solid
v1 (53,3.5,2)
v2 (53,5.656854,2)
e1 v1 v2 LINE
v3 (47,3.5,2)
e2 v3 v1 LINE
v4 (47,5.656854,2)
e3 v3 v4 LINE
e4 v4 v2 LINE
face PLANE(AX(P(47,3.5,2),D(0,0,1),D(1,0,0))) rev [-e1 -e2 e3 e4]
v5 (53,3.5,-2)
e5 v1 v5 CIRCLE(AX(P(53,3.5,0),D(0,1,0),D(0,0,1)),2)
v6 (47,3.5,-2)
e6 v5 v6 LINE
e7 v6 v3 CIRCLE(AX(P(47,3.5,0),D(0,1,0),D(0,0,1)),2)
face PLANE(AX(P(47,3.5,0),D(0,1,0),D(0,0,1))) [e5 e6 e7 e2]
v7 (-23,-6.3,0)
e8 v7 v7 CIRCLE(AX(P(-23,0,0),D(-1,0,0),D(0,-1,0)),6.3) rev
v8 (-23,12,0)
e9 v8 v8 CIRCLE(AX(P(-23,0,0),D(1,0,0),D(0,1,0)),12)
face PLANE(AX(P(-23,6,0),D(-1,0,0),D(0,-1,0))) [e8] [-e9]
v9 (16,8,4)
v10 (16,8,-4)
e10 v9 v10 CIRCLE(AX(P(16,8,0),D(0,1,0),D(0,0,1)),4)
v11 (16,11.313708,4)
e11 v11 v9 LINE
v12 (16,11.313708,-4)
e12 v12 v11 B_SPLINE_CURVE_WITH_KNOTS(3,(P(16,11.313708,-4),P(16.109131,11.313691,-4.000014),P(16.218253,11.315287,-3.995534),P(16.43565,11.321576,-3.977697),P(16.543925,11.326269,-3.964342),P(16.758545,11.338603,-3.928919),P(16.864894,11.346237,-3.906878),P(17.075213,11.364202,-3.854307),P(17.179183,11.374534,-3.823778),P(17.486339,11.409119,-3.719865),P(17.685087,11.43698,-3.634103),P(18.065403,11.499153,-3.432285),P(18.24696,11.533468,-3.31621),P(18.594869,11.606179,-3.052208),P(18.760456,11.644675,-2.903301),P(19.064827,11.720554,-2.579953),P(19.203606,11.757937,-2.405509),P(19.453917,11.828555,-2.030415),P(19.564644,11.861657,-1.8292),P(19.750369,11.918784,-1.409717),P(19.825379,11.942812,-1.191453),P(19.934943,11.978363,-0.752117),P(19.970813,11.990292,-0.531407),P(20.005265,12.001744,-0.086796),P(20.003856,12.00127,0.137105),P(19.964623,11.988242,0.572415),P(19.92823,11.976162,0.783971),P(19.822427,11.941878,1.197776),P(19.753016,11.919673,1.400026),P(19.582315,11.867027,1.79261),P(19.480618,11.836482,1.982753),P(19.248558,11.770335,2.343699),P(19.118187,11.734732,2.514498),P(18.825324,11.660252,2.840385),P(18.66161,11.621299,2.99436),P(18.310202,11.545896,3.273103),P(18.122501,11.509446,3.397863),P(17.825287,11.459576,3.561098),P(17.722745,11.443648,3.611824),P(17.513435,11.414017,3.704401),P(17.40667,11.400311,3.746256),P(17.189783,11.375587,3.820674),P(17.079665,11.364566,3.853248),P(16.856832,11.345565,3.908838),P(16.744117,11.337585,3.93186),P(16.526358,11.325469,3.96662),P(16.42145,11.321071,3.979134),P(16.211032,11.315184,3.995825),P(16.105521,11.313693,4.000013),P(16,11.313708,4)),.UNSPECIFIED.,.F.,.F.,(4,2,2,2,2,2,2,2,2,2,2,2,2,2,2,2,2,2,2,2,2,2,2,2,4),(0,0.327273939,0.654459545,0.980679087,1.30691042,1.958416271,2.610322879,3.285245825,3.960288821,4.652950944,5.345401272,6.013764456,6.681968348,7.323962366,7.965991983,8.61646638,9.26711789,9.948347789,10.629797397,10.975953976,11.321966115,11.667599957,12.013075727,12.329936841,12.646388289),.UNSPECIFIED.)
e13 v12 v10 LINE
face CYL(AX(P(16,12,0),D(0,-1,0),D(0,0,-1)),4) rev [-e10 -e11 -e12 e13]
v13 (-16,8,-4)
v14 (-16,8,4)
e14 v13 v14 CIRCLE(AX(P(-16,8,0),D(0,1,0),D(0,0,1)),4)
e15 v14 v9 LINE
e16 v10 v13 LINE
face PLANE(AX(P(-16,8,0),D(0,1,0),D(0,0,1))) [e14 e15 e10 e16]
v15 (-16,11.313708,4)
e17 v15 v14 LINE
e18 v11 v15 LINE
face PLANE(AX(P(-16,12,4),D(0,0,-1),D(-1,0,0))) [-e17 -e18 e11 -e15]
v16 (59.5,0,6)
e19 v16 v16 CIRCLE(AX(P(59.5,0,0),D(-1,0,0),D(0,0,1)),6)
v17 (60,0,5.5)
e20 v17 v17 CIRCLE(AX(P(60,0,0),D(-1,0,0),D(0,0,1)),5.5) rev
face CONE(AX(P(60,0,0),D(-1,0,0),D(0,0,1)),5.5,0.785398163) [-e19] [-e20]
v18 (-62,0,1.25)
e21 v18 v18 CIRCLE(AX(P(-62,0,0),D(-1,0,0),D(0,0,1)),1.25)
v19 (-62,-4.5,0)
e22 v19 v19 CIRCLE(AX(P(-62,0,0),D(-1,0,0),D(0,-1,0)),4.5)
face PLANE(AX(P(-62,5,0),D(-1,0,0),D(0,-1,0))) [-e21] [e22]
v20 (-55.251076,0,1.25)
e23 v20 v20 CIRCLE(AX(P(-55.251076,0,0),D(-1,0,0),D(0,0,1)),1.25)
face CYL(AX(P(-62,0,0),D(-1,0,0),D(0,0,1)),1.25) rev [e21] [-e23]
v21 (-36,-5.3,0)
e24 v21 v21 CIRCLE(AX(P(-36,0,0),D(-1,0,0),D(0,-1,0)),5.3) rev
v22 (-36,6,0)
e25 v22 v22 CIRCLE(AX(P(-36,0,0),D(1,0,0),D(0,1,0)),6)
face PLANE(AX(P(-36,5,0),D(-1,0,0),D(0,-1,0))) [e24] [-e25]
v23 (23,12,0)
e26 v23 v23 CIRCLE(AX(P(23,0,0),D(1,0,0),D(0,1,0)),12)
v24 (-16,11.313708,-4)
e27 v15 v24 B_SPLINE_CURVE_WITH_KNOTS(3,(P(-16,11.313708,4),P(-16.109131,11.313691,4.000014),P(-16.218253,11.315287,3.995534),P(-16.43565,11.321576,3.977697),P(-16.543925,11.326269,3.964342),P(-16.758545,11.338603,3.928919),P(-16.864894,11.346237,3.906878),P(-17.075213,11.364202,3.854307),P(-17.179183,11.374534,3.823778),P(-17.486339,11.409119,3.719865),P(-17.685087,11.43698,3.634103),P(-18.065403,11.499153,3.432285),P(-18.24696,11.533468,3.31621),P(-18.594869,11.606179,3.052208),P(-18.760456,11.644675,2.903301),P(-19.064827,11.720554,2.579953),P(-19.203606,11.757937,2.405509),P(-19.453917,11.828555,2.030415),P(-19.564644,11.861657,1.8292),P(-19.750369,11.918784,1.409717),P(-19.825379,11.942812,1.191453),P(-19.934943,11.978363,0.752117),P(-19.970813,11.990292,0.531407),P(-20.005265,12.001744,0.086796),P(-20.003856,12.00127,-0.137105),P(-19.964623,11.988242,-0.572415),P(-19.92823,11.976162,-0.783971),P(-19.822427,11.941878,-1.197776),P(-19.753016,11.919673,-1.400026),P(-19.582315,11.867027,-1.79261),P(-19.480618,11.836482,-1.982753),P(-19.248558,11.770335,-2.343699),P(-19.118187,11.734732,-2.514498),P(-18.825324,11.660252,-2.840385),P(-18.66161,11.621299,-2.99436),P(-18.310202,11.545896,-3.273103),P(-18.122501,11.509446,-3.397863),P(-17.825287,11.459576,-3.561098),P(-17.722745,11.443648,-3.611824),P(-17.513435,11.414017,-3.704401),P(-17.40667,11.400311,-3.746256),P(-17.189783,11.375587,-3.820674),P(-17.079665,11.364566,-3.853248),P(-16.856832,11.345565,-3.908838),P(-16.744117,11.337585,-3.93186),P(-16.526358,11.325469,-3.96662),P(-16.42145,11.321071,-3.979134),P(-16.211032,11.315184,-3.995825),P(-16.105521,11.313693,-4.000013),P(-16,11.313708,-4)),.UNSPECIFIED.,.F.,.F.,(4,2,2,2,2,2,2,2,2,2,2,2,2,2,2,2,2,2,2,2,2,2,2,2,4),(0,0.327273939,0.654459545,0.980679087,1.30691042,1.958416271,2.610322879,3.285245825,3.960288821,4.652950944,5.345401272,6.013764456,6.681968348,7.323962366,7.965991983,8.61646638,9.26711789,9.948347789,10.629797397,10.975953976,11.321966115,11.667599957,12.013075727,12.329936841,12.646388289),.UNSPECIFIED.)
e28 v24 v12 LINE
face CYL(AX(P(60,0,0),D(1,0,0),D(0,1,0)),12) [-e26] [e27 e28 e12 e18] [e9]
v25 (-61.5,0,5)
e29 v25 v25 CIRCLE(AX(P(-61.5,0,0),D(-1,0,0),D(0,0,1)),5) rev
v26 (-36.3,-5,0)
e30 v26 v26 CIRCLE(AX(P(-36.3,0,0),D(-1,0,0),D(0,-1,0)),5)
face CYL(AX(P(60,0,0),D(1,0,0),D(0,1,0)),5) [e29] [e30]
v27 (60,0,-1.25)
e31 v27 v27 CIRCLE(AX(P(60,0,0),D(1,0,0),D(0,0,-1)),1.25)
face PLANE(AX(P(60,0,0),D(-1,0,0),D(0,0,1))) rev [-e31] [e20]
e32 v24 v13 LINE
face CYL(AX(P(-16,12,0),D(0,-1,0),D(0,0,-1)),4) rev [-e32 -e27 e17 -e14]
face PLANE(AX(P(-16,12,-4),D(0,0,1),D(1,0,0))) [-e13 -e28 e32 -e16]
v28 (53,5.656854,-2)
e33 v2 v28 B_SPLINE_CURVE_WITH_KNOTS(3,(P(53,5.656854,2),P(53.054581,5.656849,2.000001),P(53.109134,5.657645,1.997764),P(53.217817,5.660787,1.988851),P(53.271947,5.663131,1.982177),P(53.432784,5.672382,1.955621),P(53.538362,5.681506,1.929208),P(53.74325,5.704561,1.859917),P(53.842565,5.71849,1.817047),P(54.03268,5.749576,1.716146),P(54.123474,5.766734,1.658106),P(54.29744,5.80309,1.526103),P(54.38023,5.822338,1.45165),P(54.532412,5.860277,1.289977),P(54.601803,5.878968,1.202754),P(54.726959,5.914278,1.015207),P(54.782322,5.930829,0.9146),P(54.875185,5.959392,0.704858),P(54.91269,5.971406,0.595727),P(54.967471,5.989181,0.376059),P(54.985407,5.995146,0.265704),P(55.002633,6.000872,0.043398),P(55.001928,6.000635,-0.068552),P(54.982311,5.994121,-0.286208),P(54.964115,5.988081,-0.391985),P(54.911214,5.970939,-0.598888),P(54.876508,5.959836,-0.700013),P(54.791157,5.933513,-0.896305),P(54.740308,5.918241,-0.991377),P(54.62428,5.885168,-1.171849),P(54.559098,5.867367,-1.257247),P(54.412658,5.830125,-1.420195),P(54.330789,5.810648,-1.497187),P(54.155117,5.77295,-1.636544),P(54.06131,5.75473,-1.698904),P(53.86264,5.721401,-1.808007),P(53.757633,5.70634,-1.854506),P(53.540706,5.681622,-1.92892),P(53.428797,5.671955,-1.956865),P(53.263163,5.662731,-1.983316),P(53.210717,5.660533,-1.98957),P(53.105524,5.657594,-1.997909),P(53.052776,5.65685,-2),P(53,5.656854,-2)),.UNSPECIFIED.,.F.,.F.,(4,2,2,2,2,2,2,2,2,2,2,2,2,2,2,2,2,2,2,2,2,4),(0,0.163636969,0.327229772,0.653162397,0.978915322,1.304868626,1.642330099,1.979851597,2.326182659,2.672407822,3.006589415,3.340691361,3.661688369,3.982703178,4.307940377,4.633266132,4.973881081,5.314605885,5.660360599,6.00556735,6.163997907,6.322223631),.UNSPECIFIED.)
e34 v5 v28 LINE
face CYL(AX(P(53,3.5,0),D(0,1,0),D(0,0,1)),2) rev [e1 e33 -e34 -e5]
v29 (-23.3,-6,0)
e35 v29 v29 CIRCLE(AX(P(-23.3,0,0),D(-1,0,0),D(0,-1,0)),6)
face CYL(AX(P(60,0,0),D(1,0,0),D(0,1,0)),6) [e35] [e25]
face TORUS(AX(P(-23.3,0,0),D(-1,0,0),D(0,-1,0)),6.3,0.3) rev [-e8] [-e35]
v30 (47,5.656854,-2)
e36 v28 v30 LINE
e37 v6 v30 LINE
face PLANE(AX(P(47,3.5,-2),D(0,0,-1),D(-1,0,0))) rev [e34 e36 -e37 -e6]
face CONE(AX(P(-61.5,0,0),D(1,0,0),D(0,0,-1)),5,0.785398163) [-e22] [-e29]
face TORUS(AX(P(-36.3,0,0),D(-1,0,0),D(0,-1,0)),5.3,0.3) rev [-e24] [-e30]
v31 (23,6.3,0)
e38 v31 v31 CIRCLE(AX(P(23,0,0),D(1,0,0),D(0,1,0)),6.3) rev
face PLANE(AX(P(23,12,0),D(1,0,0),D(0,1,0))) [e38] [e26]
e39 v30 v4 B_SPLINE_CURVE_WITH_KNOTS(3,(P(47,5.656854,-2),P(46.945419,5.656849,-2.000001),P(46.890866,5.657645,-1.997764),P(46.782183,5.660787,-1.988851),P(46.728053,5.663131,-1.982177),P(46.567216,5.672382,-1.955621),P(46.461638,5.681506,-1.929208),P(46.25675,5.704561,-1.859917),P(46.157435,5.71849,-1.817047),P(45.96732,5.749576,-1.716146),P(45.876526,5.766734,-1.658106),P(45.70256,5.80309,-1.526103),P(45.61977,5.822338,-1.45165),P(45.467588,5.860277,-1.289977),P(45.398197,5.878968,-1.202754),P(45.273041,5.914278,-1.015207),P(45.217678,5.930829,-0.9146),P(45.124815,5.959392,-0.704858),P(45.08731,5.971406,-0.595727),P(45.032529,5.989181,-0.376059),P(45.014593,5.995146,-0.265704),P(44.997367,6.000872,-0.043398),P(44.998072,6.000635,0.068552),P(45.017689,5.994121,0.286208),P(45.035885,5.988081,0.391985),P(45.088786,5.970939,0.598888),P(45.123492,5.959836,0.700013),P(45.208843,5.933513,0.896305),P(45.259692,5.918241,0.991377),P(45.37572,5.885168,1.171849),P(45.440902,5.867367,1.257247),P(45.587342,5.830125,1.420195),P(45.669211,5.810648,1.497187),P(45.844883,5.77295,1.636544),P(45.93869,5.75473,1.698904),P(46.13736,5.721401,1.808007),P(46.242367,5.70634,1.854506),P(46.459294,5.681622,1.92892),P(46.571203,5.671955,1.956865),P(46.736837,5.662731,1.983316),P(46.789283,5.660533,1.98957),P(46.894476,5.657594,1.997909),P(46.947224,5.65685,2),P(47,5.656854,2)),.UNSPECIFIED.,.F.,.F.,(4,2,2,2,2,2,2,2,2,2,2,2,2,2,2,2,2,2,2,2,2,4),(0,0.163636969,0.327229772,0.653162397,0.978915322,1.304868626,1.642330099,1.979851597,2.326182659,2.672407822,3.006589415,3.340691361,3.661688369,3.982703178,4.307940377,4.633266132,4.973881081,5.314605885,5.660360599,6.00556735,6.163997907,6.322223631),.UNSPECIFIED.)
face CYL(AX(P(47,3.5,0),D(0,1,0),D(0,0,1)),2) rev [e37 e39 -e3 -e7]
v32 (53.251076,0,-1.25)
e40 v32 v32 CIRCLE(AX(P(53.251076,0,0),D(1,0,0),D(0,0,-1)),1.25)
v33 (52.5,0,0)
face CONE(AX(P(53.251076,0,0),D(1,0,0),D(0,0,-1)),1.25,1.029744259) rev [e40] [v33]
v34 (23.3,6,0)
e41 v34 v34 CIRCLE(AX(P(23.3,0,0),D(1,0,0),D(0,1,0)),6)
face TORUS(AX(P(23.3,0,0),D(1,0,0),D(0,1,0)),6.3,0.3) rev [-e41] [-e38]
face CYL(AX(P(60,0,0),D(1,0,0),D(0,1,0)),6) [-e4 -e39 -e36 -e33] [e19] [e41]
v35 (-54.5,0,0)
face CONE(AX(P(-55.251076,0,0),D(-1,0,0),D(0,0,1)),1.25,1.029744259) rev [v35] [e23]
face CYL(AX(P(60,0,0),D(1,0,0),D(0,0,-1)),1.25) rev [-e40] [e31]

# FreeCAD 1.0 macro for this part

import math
import FreeCAD as App
import Part
import Sketcher

V = App.Vector
Q = App.Units.Quantity


def edges_at(feature, points):
    """Names of the edges that pass closest to the given points."""
    edges = feature.Shape.Edges
    near = lambda p: min(range(len(edges)), key=lambda i: edges[i].distToShape(Part.Vertex(*p))[0])
    return sorted({f"Edge{near(p) + 1}" for p in points})


def add_polygon(sketch, points):
    """Adds a closed chain of lines whose ends are joined by coincident constraints."""
    first, n = sketch.GeometryCount, len(points)
    for a, b in zip(points, points[1:] + points[:1]):
        sketch.addGeometry(Part.LineSegment(App.Vector(*a, 0), App.Vector(*b, 0)), False)
    for i in range(n):
        sketch.addConstraint(Sketcher.Constraint("Coincident", first + i, 2, first + (i + 1) % n, 1))

doc = App.newDocument("Part")
params = doc.addObject("Spreadsheet::Sheet", "Params")
for row, (alias, value) in enumerate([
    ("sketch1_width", "47 mm"),
    ("sketch1_width2", "46 mm"),
    ("sketch1_width3", "13 mm"),
    ("sketch1_width4", "26 mm"),
    ("sketch1_height", "6 mm"),
    ("revolution_angle", "360 deg"),
    ("sketch2_radius", "4 mm"),
    ("sketch2_width", "32 mm"),
    ("pocket1_length", "4 mm"),
    ("sketch3_width", "5 mm"),
    ("sketch3_height", "8 mm"),
    ("pocket2_length", "10 mm"),
    ("sketch4_diameter", "2.5 mm"),
    ("pocket3_length", "4 mm"),
    ("sketch5_diameter", "12 mm"),
    ("pocket4_length", "10 mm"),
    ("sketch6_radius", "2 mm"),
    ("sketch6_width", "6 mm"),
    ("pocket5_length", "2.5 mm"),
    ("sketch7_diameter", "2.5 mm"),
    ("hole_diameter", "2.5 mm"),
    ("hole_depth", "6.748924 mm"),
    ("sketch8_diameter", "2.5 mm"),
    ("hole2_diameter", "2.5 mm"),
    ("hole2_depth", "6.748924 mm"),
    ("chamfer_size", "0.5 mm"),
    ("fillet_radius", "0.3 mm"),
], start=1):
    params.set(f"A{row}", alias)
    params.set(f"B{row}", "=" + value)
    params.setAlias(f"B{row}", alias)

body = doc.addObject("PartDesign::Body", "Body")

sketch1 = doc.addObject("Sketcher::SketchObject", "Sketch")
body.addObject(sketch1)
sketch1.AttachmentSupport = (doc.XY_Plane, [""])
sketch1.MapMode = "FlatFace"
add_polygon(sketch1, [(70, 6), (23, 6), (23, 12), (-23, 12), (-23, 6), (-36, 6), (-36, 5), (-62, 5), (-62, 0), (70, 0)])
sketch1.addConstraint(Sketcher.Constraint("Horizontal", 0))
sketch1.addConstraint(Sketcher.Constraint("Vertical", 1))
sketch1.addConstraint(Sketcher.Constraint("Horizontal", 2))
sketch1.addConstraint(Sketcher.Constraint("Vertical", 3))
sketch1.addConstraint(Sketcher.Constraint("Horizontal", 4))
sketch1.addConstraint(Sketcher.Constraint("Vertical", 5))
sketch1.addConstraint(Sketcher.Constraint("Horizontal", 6))
sketch1.addConstraint(Sketcher.Constraint("Vertical", 7))
sketch1.addConstraint(Sketcher.Constraint("Horizontal", 8))
sketch1.addConstraint(Sketcher.Constraint("Vertical", 9))
sketch1.addConstraint(Sketcher.Constraint("Symmetric", 0, 2, 3, 2, -2))
sketch1.addConstraint(Sketcher.Constraint("PointOnObject", 7, 2, -1))
sketch1.addConstraint(Sketcher.Constraint("Equal", 3, 9))
sketch1.addConstraint(Sketcher.Constraint("DistanceX", 0, 2, 0, 1, Q("47 mm")))
sketch1.addConstraint(Sketcher.Constraint("DistanceX", 2, 2, 2, 1, Q("46 mm")))
sketch1.addConstraint(Sketcher.Constraint("DistanceX", 4, 2, 4, 1, Q("13 mm")))
sketch1.addConstraint(Sketcher.Constraint("DistanceX", 6, 2, 6, 1, Q("26 mm")))
sketch1.addConstraint(Sketcher.Constraint("DistanceY", 1, 1, 1, 2, Q("6 mm")))
sketch1.addConstraint(Sketcher.Constraint("DistanceY", 5, 2, 5, 1, Q("1 mm")))
sketch1.setExpression("Constraints[23]", "Params.sketch1_width")
sketch1.setExpression("Constraints[24]", "Params.sketch1_width2")
sketch1.setExpression("Constraints[25]", "Params.sketch1_width3")
sketch1.setExpression("Constraints[26]", "Params.sketch1_width4")
sketch1.setExpression("Constraints[27]", "Params.sketch1_height")
revolution = doc.addObject("PartDesign::Revolution", "Revolution")
body.addObject(revolution)
revolution.Profile = sketch1
revolution.ReferenceAxis = (sketch1, ["H_Axis"])
revolution.setExpression("Angle", "Params.revolution_angle")

sketch2 = doc.addObject("Sketcher::SketchObject", "Sketch001")
body.addObject(sketch2)
sketch2.AttachmentSupport = (doc.XZ_Plane, [""])
sketch2.MapMode = "FlatFace"
sketch2.AttachmentOffset = App.Placement(V(0, 0, -8), App.Rotation())
sketch2.addGeometry(Part.LineSegment(V(16, -4, 0), V(-16, -4, 0)), False)
sketch2.addGeometry(Part.ArcOfCircle(Part.Circle(V(-16, 0, 0), V(0, 0, 1), 4), math.radians(90), math.radians(270)), False)
sketch2.addGeometry(Part.LineSegment(V(-16, 4, 0), V(16, 4, 0)), False)
sketch2.addGeometry(Part.ArcOfCircle(Part.Circle(V(16, 0, 0), V(0, 0, 1), 4), math.radians(-90), math.radians(90)), False)
sketch2.addConstraint(Sketcher.Constraint("Tangent", 0, 2, 1, 2))
sketch2.addConstraint(Sketcher.Constraint("Tangent", 1, 1, 2, 1))
sketch2.addConstraint(Sketcher.Constraint("Tangent", 2, 2, 3, 2))
sketch2.addConstraint(Sketcher.Constraint("Tangent", 3, 1, 0, 1))
sketch2.addConstraint(Sketcher.Constraint("Horizontal", 0))
sketch2.addConstraint(Sketcher.Constraint("Horizontal", 2))
sketch2.addConstraint(Sketcher.Constraint("Symmetric", 1, 3, 3, 3, -1, 1))
sketch2.addConstraint(Sketcher.Constraint("Radius", 1, Q("4 mm")))
sketch2.addConstraint(Sketcher.Constraint("DistanceX", 0, 2, 0, 1, Q("32 mm")))
sketch2.setExpression("Constraints[7]", "Params.sketch2_radius")
sketch2.setExpression("Constraints[8]", "Params.sketch2_width")
pocket1 = doc.addObject("PartDesign::Pocket", "Pocket")
body.addObject(pocket1)
pocket1.Profile = sketch2
pocket1.setExpression("Length", "Params.pocket1_length")

sketch3 = doc.addObject("Sketcher::SketchObject", "Sketch002")
body.addObject(sketch3)
sketch3.AttachmentSupport = (doc.YZ_Plane, [""])
sketch3.MapMode = "FlatFace"
sketch3.AttachmentOffset = App.Placement(V(0, 0, 70), App.Rotation())
add_polygon(sketch3, [(10, 4), (4, 4), (4, -4), (10, -4)])
sketch3.addConstraint(Sketcher.Constraint("Horizontal", 0))
sketch3.addConstraint(Sketcher.Constraint("Vertical", 1))
sketch3.addConstraint(Sketcher.Constraint("Horizontal", 2))
sketch3.addConstraint(Sketcher.Constraint("Vertical", 3))
sketch3.addConstraint(Sketcher.Constraint("DistanceX", 0, 2, 0, 1, Q("5 mm")))
sketch3.addConstraint(Sketcher.Constraint("DistanceY", 1, 2, 1, 1, Q("8 mm")))
sketch3.addConstraint(Sketcher.Constraint("DistanceY", -1, 1, 0, 2, Q("4 mm")))
sketch3.addConstraint(Sketcher.Constraint("DistanceX", -1, 1, 0, 2, Q("4.5 mm")))
sketch3.setExpression("Constraints[8]", "Params.sketch3_width")
sketch3.setExpression("Constraints[9]", "Params.sketch3_height")
pocket2 = doc.addObject("PartDesign::Pocket", "Pocket001")
body.addObject(pocket2)
pocket2.Profile = sketch3
pocket2.setExpression("Length", "Params.pocket2_length")

sketch4 = doc.addObject("Sketcher::SketchObject", "Sketch003")
body.addObject(sketch4)
sketch4.AttachmentSupport = (doc.XZ_Plane, [""])
sketch4.MapMode = "FlatFace"
sketch4.AttachmentOffset = App.Placement(V(0, 0, -4.5), App.Rotation())
sketch4.addGeometry(Part.Circle(V(65, 0, 0), V(0, 0, 1), 1.2), False)
sketch4.addConstraint(Sketcher.Constraint("PointOnObject", 0, 3, -1))
sketch4.addConstraint(Sketcher.Constraint("Diameter", 0, Q("2.5 mm")))
sketch4.addConstraint(Sketcher.Constraint("DistanceX", -1, 1, 0, 3, Q("65 mm")))
sketch4.setExpression("Constraints[1]", "Params.sketch4_diameter")
pocket3 = doc.addObject("PartDesign::Pocket", "Pocket002")
body.addObject(pocket3)
pocket3.Profile = sketch4
pocket3.setExpression("Length", "Params.pocket3_length")
pocket3.Reversed = True

sketch5 = doc.addObject("Sketcher::SketchObject", "Sketch004")
body.addObject(sketch5)
sketch5.AttachmentSupport = (doc.YZ_Plane, [""])
sketch5.MapMode = "FlatFace"
sketch5.AttachmentOffset = App.Placement(V(0, 0, 60), App.Rotation())
sketch5.addGeometry(Part.Circle(V(0, 0, 0), V(0, 0, 1), 6), False)
sketch5.addConstraint(Sketcher.Constraint("Coincident", 0, 3, -1, 1))
sketch5.addConstraint(Sketcher.Constraint("Diameter", 0, Q("12 mm")))
sketch5.setExpression("Constraints[1]", "Params.sketch5_diameter")
pocket4 = doc.addObject("PartDesign::Pocket", "Pocket003")
body.addObject(pocket4)
pocket4.Profile = sketch5
pocket4.setExpression("Length", "Params.pocket4_length")
pocket4.Reversed = True

sketch6 = doc.addObject("Sketcher::SketchObject", "Sketch005")
body.addObject(sketch6)
sketch6.AttachmentSupport = (doc.XZ_Plane, [""])
sketch6.MapMode = "FlatFace"
sketch6.AttachmentOffset = App.Placement(V(0, 0, -6), App.Rotation())
sketch6.addGeometry(Part.LineSegment(V(53, -2, 0), V(47, -2, 0)), False)
sketch6.addGeometry(Part.ArcOfCircle(Part.Circle(V(47, 0, 0), V(0, 0, 1), 2), math.radians(90), math.radians(270)), False)
sketch6.addGeometry(Part.LineSegment(V(47, 2, 0), V(53, 2, 0)), False)
sketch6.addGeometry(Part.ArcOfCircle(Part.Circle(V(53, 0, 0), V(0, 0, 1), 2), math.radians(-90), math.radians(90)), False)
sketch6.addConstraint(Sketcher.Constraint("Tangent", 0, 2, 1, 2))
sketch6.addConstraint(Sketcher.Constraint("Tangent", 1, 1, 2, 1))
sketch6.addConstraint(Sketcher.Constraint("Tangent", 2, 2, 3, 2))
sketch6.addConstraint(Sketcher.Constraint("Tangent", 3, 1, 0, 1))
sketch6.addConstraint(Sketcher.Constraint("Horizontal", 0))
sketch6.addConstraint(Sketcher.Constraint("Horizontal", 2))
sketch6.addConstraint(Sketcher.Constraint("PointOnObject", 1, 3, -1))
sketch6.addConstraint(Sketcher.Constraint("Radius", 1, Q("2 mm")))
sketch6.addConstraint(Sketcher.Constraint("DistanceX", 0, 2, 0, 1, Q("6 mm")))
sketch6.addConstraint(Sketcher.Constraint("DistanceX", -1, 1, 1, 3, Q("47 mm")))
sketch6.setExpression("Constraints[7]", "Params.sketch6_radius")
sketch6.setExpression("Constraints[8]", "Params.sketch6_width")
pocket5 = doc.addObject("PartDesign::Pocket", "Pocket004")
body.addObject(pocket5)
pocket5.Profile = sketch6
pocket5.setExpression("Length", "Params.pocket5_length")
pocket5.Reversed = True

sketch7 = doc.addObject("Sketcher::SketchObject", "Sketch006")
body.addObject(sketch7)
sketch7.AttachmentSupport = (doc.YZ_Plane, [""])
sketch7.MapMode = "FlatFace"
sketch7.AttachmentOffset = App.Placement(V(0, 0, -62), App.Rotation())
sketch7.addGeometry(Part.Circle(V(0, 0, 0), V(0, 0, 1), 1.2), False)
sketch7.addConstraint(Sketcher.Constraint("Coincident", 0, 3, -1, 1))
sketch7.addConstraint(Sketcher.Constraint("Diameter", 0, Q("2.5 mm")))
sketch7.setExpression("Constraints[1]", "Params.sketch7_diameter")
doc.recompute()
hole = doc.addObject("PartDesign::Hole", "Hole")
body.addObject(hole)
hole.Profile = sketch7
hole.ThreadType = "None"
hole.setExpression("Diameter", "Params.hole_diameter")
hole.DepthType = "Dimension"
hole.setExpression("Depth", "Params.hole_depth")
hole.DrillPoint = "Angled"
hole.DrillPointAngle = 118
hole.Reversed = True

sketch8 = doc.addObject("Sketcher::SketchObject", "Sketch007")
body.addObject(sketch8)
sketch8.AttachmentSupport = (doc.YZ_Plane, [""])
sketch8.MapMode = "FlatFace"
sketch8.AttachmentOffset = App.Placement(V(0, 0, 60), App.Rotation())
sketch8.addGeometry(Part.Circle(V(0, 0, 0), V(0, 0, 1), 1.2), False)
sketch8.addConstraint(Sketcher.Constraint("Coincident", 0, 3, -1, 1))
sketch8.addConstraint(Sketcher.Constraint("Diameter", 0, Q("2.5 mm")))
sketch8.setExpression("Constraints[1]", "Params.sketch8_diameter")
doc.recompute()
hole2 = doc.addObject("PartDesign::Hole", "Hole001")
body.addObject(hole2)
hole2.Profile = sketch8
hole2.ThreadType = "None"
hole2.setExpression("Diameter", "Params.hole2_diameter")
hole2.DepthType = "Dimension"
hole2.setExpression("Depth", "Params.hole2_depth")
hole2.DrillPoint = "Angled"
hole2.DrillPointAngle = 118
doc.recompute()

chamfer = doc.addObject("PartDesign::Chamfer", "Chamfer")
body.addObject(chamfer)
chamfer.Base = (hole2, edges_at(hole2, [(-62, -5, 0), (60, -6, 0)]))
chamfer.setExpression("Size", "Params.chamfer_size")
doc.recompute()

fillet = doc.addObject("PartDesign::Fillet", "Fillet")
body.addObject(fillet)
fillet.Base = (chamfer, edges_at(chamfer, [(-36, -5, 0), (-23, -6, 0), (23, -6, 0)]))
fillet.setExpression("Radius", "Params.fillet_radius")

doc.recompute()
